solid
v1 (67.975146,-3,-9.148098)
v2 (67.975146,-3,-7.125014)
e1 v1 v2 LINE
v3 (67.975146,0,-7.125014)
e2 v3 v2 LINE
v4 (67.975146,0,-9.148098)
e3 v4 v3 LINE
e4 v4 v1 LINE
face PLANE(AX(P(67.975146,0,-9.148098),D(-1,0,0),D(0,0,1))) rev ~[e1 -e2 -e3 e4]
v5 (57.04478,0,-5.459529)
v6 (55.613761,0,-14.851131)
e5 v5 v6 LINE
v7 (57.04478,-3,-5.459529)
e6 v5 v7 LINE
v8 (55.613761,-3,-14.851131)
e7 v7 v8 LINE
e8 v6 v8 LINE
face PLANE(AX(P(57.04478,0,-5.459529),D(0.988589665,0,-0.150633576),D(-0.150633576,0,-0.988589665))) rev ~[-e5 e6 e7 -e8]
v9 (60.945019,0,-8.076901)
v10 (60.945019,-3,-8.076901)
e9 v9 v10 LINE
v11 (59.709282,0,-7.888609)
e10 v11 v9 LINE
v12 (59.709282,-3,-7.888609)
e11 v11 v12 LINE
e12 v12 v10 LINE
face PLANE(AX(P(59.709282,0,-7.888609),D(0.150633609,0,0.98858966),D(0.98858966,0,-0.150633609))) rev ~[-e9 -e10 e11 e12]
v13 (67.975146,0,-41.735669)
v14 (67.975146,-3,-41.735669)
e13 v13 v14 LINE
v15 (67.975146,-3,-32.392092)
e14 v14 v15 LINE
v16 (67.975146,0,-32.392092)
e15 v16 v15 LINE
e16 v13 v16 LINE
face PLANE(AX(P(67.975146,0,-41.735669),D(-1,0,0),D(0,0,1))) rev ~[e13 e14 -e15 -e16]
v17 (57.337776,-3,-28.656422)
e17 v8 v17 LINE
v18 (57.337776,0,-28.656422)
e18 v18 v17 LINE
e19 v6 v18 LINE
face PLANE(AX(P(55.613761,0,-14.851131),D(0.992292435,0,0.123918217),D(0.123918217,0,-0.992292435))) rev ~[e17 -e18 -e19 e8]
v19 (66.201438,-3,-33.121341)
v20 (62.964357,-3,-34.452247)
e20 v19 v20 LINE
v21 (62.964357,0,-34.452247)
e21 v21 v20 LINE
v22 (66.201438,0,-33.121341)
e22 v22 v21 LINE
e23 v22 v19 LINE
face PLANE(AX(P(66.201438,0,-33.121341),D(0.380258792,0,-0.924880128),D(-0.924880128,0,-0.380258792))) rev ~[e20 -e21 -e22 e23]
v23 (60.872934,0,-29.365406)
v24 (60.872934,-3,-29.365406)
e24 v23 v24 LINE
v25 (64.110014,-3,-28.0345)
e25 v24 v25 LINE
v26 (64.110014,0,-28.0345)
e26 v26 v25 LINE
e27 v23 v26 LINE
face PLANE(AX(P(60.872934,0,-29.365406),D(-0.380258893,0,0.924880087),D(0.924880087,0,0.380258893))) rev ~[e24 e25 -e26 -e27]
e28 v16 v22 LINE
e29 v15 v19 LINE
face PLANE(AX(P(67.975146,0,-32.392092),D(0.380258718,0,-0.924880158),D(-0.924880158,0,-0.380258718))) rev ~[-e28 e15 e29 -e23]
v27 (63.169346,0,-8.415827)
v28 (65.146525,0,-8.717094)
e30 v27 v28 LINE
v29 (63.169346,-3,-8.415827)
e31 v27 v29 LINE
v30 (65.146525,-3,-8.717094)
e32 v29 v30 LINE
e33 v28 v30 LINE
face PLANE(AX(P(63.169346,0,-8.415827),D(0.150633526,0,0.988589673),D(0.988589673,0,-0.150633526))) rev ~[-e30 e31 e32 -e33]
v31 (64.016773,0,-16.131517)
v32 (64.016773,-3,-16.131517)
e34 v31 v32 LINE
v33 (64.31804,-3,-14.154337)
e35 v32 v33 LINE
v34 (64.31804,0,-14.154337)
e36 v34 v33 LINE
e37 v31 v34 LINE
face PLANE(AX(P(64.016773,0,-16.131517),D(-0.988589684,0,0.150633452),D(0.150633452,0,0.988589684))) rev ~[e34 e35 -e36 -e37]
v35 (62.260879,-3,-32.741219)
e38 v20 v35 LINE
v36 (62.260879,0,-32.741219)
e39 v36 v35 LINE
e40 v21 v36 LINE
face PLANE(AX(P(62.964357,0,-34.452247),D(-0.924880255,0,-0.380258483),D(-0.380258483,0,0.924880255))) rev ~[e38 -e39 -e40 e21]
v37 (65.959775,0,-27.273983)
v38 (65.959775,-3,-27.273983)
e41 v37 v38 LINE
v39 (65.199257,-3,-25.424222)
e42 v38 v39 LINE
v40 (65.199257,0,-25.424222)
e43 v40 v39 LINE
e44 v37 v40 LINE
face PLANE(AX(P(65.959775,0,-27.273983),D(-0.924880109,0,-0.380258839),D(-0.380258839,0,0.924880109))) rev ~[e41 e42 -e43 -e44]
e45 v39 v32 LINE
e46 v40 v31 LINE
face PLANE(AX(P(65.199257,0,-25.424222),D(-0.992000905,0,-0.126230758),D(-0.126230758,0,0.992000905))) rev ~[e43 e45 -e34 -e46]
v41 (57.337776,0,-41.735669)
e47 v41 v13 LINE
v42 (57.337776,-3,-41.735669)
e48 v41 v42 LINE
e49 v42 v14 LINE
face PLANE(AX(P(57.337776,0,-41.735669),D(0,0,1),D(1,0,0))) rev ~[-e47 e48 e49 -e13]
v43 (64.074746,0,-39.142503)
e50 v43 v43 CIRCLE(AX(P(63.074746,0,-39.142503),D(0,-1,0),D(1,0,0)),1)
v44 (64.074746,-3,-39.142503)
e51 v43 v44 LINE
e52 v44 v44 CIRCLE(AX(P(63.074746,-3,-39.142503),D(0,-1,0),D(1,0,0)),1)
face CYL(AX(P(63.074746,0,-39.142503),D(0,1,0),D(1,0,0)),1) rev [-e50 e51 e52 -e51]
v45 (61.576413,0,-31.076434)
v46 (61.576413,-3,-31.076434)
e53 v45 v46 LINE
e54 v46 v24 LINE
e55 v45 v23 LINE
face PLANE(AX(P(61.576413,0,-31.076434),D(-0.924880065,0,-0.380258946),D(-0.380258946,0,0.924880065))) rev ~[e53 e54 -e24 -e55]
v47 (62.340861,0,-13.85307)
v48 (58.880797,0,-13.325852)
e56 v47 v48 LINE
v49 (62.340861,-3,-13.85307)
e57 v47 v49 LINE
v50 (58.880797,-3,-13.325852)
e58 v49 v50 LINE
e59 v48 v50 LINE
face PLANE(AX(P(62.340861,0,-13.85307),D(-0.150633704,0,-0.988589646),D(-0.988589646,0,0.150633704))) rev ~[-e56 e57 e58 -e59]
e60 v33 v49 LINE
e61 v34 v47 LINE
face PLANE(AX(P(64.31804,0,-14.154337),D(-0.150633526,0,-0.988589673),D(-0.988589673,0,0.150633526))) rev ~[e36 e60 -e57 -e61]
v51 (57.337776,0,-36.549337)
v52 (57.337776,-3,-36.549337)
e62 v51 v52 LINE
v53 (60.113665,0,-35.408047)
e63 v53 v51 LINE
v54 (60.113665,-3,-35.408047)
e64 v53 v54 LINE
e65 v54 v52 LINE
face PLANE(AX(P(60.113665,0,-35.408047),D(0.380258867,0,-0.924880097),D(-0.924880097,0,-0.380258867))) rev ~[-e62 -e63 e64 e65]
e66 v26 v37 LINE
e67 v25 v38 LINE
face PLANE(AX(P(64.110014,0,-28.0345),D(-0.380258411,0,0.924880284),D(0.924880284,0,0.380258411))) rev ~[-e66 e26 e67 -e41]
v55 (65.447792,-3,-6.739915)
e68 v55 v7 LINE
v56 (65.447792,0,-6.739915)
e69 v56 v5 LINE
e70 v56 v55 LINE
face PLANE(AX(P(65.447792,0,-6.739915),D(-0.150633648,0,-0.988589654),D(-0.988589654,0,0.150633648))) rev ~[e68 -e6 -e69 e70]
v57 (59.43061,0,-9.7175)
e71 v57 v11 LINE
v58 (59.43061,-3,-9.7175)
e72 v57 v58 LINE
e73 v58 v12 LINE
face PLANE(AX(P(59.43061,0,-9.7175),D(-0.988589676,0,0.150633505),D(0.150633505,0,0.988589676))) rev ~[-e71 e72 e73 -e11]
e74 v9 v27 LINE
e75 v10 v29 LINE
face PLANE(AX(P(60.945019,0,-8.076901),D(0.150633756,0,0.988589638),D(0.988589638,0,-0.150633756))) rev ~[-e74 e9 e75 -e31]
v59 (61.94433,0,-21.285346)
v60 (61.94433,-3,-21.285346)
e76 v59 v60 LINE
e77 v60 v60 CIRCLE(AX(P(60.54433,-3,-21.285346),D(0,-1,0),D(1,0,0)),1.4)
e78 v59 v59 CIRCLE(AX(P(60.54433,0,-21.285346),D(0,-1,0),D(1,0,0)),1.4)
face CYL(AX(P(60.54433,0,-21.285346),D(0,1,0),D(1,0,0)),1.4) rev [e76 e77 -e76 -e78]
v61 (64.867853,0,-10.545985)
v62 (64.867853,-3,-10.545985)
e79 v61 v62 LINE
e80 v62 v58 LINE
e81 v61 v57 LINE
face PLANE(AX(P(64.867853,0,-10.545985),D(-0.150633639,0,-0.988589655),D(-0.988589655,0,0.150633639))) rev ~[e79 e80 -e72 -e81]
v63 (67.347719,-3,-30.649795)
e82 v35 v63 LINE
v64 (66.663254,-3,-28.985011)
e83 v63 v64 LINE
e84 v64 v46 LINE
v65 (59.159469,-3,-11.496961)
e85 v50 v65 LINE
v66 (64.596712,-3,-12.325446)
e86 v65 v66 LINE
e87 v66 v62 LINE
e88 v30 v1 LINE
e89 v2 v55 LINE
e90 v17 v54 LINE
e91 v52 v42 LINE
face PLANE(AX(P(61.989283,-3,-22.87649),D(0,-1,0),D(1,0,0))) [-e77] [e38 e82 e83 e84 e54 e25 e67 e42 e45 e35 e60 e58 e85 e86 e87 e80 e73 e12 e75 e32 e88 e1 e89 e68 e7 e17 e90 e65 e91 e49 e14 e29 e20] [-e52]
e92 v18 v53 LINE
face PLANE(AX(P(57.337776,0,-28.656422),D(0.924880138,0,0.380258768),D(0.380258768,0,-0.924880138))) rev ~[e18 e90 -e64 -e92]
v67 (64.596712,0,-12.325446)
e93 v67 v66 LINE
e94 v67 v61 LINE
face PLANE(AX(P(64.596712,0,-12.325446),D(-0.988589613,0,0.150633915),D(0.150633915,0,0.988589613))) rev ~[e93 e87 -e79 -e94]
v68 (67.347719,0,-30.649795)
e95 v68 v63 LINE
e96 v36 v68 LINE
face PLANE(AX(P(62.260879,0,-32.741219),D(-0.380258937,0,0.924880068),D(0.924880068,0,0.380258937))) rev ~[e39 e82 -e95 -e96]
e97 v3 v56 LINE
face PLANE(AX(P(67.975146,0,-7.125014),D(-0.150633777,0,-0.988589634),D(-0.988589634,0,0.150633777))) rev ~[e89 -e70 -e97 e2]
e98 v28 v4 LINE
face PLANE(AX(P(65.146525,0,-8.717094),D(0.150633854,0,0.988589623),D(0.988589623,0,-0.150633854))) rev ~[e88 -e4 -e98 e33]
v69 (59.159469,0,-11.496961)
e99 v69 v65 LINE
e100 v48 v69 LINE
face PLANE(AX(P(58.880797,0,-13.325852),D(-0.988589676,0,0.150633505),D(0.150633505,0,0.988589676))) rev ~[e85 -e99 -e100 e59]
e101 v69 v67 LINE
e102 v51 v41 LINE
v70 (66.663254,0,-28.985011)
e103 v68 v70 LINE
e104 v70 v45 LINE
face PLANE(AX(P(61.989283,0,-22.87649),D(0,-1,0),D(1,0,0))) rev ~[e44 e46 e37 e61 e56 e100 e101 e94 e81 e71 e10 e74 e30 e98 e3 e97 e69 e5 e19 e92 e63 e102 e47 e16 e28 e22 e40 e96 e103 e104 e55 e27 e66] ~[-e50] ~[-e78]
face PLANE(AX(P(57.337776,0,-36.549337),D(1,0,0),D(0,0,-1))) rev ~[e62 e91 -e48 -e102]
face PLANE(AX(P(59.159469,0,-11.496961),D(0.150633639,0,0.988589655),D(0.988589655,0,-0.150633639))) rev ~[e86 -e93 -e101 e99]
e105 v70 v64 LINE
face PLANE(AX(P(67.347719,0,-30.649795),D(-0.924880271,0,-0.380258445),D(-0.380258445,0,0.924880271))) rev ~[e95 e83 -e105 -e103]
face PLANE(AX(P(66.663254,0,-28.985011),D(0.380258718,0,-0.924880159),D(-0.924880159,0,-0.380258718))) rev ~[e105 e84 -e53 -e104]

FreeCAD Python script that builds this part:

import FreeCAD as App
import Part
import Sketcher


def add_polygon(sketch, points):
    """Adds a closed chain of lines whose ends are joined by coincident constraints."""
    first, n = sketch.GeometryCount, len(points)
    for a, b in zip(points, points[1:] + points[:1]):
        sketch.addGeometry(Part.LineSegment(App.Vector(*a, 0), App.Vector(*b, 0)), False)
    for i in range(n):
        sketch.addConstraint(Sketcher.Constraint("Coincident", first + i, 2, first + (i + 1) % n, 1))

doc = App.newDocument("Part")
body = doc.addObject("PartDesign::Body", "Body")

sketch1 = doc.addObject("Sketcher::SketchObject", "Sketch")
body.addObject(sketch1)
sketch1.AttachmentSupport = (doc.XZ_Plane, [""])
sketch1.MapMode = "FlatFace"
add_polygon(sketch1, [(66.201438, -33.121341), (62.964357, -34.452247), (62.260879, -32.741219), (67.347719, -30.649795), (66.663254, -28.985011), (61.576413, -31.076434), (60.872934, -29.365406), (64.110014, -28.0345), (65.959775, -27.273983), (65.199257, -25.424222), (64.016773, -16.131517), (64.31804, -14.154337), (62.340861, -13.85307), (58.880797, -13.325852), (59.159469, -11.496961), (64.596712, -12.325446), (64.867853, -10.545985), (59.43061, -9.7175), (59.709282, -7.888609), (60.945019, -8.076901), (63.169346, -8.415827), (65.146525, -8.717094), (67.975146, -9.148098), (67.975146, -7.125014), (65.447792, -6.739915), (57.04478, -5.459529), (55.613761, -14.851131), (57.337776, -28.656422), (60.113665, -35.408047), (57.337776, -36.549337), (57.337776, -41.735669), (67.975146, -41.735669), (67.975146, -32.392092)])
sketch1.addGeometry(Part.Circle(App.Vector(63.074746, -39.142503, 0), App.Vector(0, 0, 1), 1), False)
sketch1.addGeometry(Part.Circle(App.Vector(60.54433, -21.285346, 0), App.Vector(0, 0, 1), 1.4), False)
sketch1.addConstraint(Sketcher.Constraint("Vertical", 22))
sketch1.addConstraint(Sketcher.Constraint("Vertical", 29))
sketch1.addConstraint(Sketcher.Constraint("Horizontal", 30))
sketch1.addConstraint(Sketcher.Constraint("Vertical", 31))
sketch1.addConstraint(Sketcher.Constraint("Diameter", 33, 2.0))
sketch1.addConstraint(Sketcher.Constraint("Diameter", 34, 2.8))
sketch1.addConstraint(Sketcher.Constraint("Distance", 7, 2.0))
sketch1.addConstraint(Sketcher.Constraint("Distance", 8, 2.000001))
sketch1.addConstraint(Sketcher.Constraint("Distance", 10, 2.000001))
sketch1.addConstraint(Sketcher.Constraint("Distance", 11, 2.0))
sketch1.addConstraint(Sketcher.Constraint("Distance", 20, 2.0))
sketch1.addConstraint(Sketcher.Constraint("Distance", 0, 3.500001))
sketch1.addConstraint(Sketcher.Constraint("Distance", 2, 5.5))
sketch1.addConstraint(Sketcher.Constraint("Distance", 3, 1.799999))
sketch1.addConstraint(Sketcher.Constraint("Distance", 4, 5.5))
sketch1.addConstraint(Sketcher.Constraint("Distance", 6, 3.5))
sketch1.addConstraint(Sketcher.Constraint("Distance", 12, 3.5))
sketch1.addConstraint(Sketcher.Constraint("Distance", 14, 5.5))
sketch1.addConstraint(Sketcher.Constraint("Distance", 15, 1.8))
sketch1.addConstraint(Sketcher.Constraint("Distance", 16, 5.5))
sketch1.addConstraint(Sketcher.Constraint("Distance", 24, 8.5))
sketch1.addConstraint(Sketcher.Constraint("Distance", 25, 9.5))
sketch1.addConstraint(Sketcher.Constraint("Distance", 27, 7.3))
sketch1.addConstraint(Sketcher.Constraint("Distance", 1, 1.849999))
sketch1.addConstraint(Sketcher.Constraint("Distance", 5, 1.85))
sketch1.addConstraint(Sketcher.Constraint("Distance", 13, 1.85))
sketch1.addConstraint(Sketcher.Constraint("Distance", 17, 1.85))
sketch1.addConstraint(Sketcher.Constraint("Distance", 18, 1.25))
sketch1.addConstraint(Sketcher.Constraint("Distance", 19, 2.25))
sketch1.addConstraint(Sketcher.Constraint("DistanceX", 9, 2, 7, 2, 1.943002))
sketch1.addConstraint(Sketcher.Constraint("DistanceX", 30, 1, 30, 2, 10.63737))
sketch1.addConstraint(Sketcher.Constraint("DistanceY", 6, 2, -1, 1, 28.0345))
sketch1.addConstraint(Sketcher.Constraint("DistanceY", 16, 2, -1, 1, 9.7175))
sketch1.addConstraint(Sketcher.Constraint("DistanceY", 18, 2, -1, 1, 8.076901))
sketch1.addConstraint(Sketcher.Constraint("DistanceY", 0, 2, 34, 3, 13.166901))
sketch1.addConstraint(Sketcher.Constraint("DistanceX", 4, 2, 6, 2, 2.533601))
sketch1.addConstraint(Sketcher.Constraint("DistanceX", 16, 2, 14, 2, 5.166102))
sketch1.addConstraint(Sketcher.Constraint("DistanceX", 19, 2, 21, 2, 4.8058))
sketch1.addConstraint(Sketcher.Constraint("DistanceY", 22, 2, 23, 2, 0.385099))
sketch1.addConstraint(Sketcher.Constraint("DistanceX", 24, 2, 17, 2, 2.664502))
sketch1.addConstraint(Sketcher.Constraint("DistanceY", 19, 2, 24, 2, 2.956298))
sketch1.addConstraint(Sketcher.Constraint("DistanceX", 25, 2, 11, 2, 6.7271))
sketch1.addConstraint(Sketcher.Constraint("DistanceY", 27, 2, 0, 2, 0.9558))
sketch1.addConstraint(Sketcher.Constraint("DistanceX", 33, 3, 30, 2, 4.9004))
sketch1.addConstraint(Sketcher.Constraint("Distance", 21, 2.861269))
sketch1.addConstraint(Sketcher.Constraint("Distance", 28, 3.00135))
sketch1.addConstraint(Sketcher.Constraint("Distance", 32, 1.917771))
sketch1.addConstraint(Sketcher.Constraint("DistanceY", 22, 1, 22, 2, 2.023084))
sketch1.addConstraint(Sketcher.Constraint("DistanceY", 29, 2, 29, 1, 5.186332))
sketch1.addConstraint(Sketcher.Constraint("DistanceY", 31, 1, 31, 2, 9.343577))
sketch1.addConstraint(Sketcher.Constraint("DistanceX", -1, 1, 34, 3, 60.54433))
sketch1.addConstraint(Sketcher.Constraint("DistanceX", -1, 1, 1, 2, 62.260879))
sketch1.addConstraint(Sketcher.Constraint("DistanceY", 1, 2, -1, 1, 32.741219))
sketch1.addConstraint(Sketcher.Constraint("DistanceX", -1, 1, 2, 2, 67.347719))
sketch1.addConstraint(Sketcher.Constraint("DistanceY", 3, 2, -1, 1, 28.985011))
sketch1.addConstraint(Sketcher.Constraint("DistanceX", -1, 1, 10, 2, 64.31804))
sketch1.addConstraint(Sketcher.Constraint("DistanceX", -1, 1, 11, 2, 62.340861))
sketch1.addConstraint(Sketcher.Constraint("DistanceY", 11, 2, -1, 1, 13.85307))
sketch1.addConstraint(Sketcher.Constraint("DistanceY", 12, 2, -1, 1, 13.325852))
sketch1.addConstraint(Sketcher.Constraint("DistanceX", -1, 1, 13, 2, 59.159469))
sketch1.addConstraint(Sketcher.Constraint("DistanceX", -1, 1, 14, 2, 64.596712))
sketch1.addConstraint(Sketcher.Constraint("DistanceY", 17, 2, -1, 1, 7.888609))
sketch1.addConstraint(Sketcher.Constraint("DistanceY", 24, 2, -1, 1, 5.459529))
sketch1.addConstraint(Sketcher.Constraint("DistanceY", 26, 2, -1, 1, 28.656422))
sketch1.addConstraint(Sketcher.Constraint("DistanceY", 29, 2, -1, 1, 41.735669))
sketch1.addConstraint(Sketcher.Constraint("DistanceY", 32, 2, -1, 1, 33.121341))
sketch1.addConstraint(Sketcher.Constraint("DistanceX", 0, 2, 33, 3, 0.110389))
sketch1.addConstraint(Sketcher.Constraint("DistanceY", 33, 3, 3, 2, 10.157492))
sketch1.addConstraint(Sketcher.Constraint("DistanceX", 4, 2, 3, 2, 5.086841))
sketch1.addConstraint(Sketcher.Constraint("DistanceX", 7, 2, 3, 2, 0.703479))
sketch1.addConstraint(Sketcher.Constraint("DistanceY", 7, 2, 8, 2, 1.849761))
sketch1.addConstraint(Sketcher.Constraint("DistanceY", 15, 2, 20, 2, 1.828891))
pad1 = doc.addObject("PartDesign::Pad", "Pad")
body.addObject(pad1)
pad1.Profile = sketch1
pad1.Length = 3

doc.recompute()
